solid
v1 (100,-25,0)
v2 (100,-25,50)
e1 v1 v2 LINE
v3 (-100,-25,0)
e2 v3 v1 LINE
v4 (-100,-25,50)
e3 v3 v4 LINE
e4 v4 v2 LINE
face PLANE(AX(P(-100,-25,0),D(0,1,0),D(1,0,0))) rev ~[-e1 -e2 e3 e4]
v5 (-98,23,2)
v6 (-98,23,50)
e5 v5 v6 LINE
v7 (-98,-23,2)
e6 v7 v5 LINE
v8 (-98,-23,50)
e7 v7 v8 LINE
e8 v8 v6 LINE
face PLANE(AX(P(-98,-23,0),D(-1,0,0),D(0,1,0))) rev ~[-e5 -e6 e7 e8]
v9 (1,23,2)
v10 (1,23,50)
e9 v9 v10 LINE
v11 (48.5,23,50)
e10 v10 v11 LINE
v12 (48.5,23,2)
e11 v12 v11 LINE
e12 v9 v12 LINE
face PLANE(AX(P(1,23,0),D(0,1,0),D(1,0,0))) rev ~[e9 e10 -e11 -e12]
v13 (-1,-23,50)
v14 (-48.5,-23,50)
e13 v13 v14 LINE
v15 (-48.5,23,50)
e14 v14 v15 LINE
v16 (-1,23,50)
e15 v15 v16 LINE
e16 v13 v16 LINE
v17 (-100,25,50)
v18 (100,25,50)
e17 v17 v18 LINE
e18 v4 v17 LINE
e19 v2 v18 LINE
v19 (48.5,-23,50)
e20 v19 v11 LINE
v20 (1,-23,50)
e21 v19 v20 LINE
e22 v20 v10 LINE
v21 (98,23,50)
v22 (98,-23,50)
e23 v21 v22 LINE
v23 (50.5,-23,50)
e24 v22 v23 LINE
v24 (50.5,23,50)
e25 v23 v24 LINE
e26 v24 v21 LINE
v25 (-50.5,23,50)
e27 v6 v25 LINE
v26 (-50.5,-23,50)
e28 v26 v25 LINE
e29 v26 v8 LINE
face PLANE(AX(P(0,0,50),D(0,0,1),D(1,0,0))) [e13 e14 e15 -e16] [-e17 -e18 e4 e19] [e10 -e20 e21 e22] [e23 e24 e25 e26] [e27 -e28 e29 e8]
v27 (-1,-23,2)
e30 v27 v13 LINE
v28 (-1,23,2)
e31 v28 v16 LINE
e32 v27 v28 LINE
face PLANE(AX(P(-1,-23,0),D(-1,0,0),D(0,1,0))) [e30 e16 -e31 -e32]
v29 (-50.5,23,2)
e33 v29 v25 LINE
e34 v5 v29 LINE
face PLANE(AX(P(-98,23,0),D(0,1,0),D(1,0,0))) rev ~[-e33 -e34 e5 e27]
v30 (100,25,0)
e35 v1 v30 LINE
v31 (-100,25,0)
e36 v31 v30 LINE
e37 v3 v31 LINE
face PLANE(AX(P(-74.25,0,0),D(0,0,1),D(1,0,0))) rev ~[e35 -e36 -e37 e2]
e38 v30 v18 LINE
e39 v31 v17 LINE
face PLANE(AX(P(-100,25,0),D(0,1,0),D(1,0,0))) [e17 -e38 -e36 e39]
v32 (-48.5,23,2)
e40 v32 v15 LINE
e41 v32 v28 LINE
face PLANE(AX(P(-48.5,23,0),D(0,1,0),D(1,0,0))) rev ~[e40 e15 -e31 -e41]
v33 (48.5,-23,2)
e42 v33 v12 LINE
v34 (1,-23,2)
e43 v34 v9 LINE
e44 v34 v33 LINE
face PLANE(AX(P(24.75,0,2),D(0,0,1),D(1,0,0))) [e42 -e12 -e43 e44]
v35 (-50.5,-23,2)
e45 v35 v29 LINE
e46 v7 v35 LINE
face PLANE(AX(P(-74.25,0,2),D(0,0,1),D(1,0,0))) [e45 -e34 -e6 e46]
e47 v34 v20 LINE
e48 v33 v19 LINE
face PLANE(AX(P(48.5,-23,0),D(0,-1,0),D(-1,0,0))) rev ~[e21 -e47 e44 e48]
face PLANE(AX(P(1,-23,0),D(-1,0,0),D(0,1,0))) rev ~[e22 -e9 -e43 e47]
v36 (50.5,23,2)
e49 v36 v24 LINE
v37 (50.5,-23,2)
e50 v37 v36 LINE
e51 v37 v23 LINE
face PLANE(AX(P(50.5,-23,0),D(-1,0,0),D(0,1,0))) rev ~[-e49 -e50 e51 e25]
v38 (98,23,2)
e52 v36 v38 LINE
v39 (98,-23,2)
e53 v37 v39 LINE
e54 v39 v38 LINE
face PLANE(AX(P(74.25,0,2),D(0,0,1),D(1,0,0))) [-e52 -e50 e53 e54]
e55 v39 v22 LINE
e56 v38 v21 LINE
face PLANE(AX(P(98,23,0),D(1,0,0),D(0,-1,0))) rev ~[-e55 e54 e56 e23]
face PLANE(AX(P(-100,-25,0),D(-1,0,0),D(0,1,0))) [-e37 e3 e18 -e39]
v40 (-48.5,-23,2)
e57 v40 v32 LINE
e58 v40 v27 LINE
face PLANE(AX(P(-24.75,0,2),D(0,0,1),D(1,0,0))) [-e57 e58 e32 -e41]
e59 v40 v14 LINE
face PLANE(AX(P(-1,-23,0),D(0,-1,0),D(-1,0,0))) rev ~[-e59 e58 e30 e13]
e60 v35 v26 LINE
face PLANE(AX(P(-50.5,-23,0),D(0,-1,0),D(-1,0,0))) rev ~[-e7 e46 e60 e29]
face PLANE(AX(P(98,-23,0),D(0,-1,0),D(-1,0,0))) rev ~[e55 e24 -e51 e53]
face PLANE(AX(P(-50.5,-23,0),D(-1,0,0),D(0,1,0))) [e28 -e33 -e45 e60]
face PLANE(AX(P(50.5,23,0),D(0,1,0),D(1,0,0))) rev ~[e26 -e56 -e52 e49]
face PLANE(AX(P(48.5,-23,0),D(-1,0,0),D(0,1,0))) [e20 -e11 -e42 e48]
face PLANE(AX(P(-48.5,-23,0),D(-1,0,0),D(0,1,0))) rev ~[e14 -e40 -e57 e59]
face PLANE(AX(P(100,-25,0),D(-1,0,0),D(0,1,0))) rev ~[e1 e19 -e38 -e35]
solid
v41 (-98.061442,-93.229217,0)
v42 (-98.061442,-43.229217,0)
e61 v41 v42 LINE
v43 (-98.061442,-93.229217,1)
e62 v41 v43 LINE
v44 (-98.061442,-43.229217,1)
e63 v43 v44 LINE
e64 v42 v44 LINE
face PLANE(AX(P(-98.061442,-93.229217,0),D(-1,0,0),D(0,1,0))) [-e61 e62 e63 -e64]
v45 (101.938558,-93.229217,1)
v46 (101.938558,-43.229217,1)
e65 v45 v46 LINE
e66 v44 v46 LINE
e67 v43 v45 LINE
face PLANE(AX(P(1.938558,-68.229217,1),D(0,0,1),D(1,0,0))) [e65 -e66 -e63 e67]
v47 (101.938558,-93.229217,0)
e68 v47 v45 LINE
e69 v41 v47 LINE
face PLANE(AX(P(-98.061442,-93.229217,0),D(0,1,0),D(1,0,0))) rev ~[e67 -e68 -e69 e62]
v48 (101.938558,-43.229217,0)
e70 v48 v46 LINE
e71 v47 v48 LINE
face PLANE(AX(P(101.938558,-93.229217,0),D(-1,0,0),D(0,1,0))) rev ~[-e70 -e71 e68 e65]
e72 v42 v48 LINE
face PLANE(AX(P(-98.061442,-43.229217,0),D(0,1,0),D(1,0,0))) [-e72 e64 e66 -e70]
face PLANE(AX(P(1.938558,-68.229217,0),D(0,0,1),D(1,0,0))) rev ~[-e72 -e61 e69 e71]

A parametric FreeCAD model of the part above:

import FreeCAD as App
import Part
import Sketcher

V = App.Vector
Q = App.Units.Quantity


def add_polygon(sketch, points):
    """Adds a closed chain of lines whose ends are joined by coincident constraints."""
    first, n = sketch.GeometryCount, len(points)
    for a, b in zip(points, points[1:] + points[:1]):
        sketch.addGeometry(Part.LineSegment(App.Vector(*a, 0), App.Vector(*b, 0)), False)
    for i in range(n):
        sketch.addConstraint(Sketcher.Constraint("Coincident", first + i, 2, first + (i + 1) % n, 1))

doc = App.newDocument("Part")
body = doc.addObject("PartDesign::Body", "Body")

# Sketch on XY plane
sketch1 = doc.addObject("Sketcher::SketchObject", "Sketch")
body.addObject(sketch1)
sketch1.AttachmentSupport = (doc.XY_Plane, [""])
sketch1.MapMode = "FlatFace"
add_polygon(sketch1, [(-100, 25), (-100, -25), (100, -25), (100, 25)])  # lines 0-3
add_polygon(sketch1, [(98, -23), (50, -23), (50, 23), (98, 23)])  # lines 4-7
add_polygon(sketch1, [(48, -23), (1, -23), (1, 23), (48, 23)])  # lines 8-11
add_polygon(sketch1, [(-1, -23), (-48, -23), (-48, 23), (-1, 23)])  # lines 12-15
add_polygon(sketch1, [(-50, -23), (-98, -23), (-98, 23), (-50, 23)])  # lines 16-19
sketch1.addConstraint([
    Sketcher.Constraint("Vertical", 0),
    Sketcher.Constraint("Horizontal", 1),
    Sketcher.Constraint("Vertical", 2),
    Sketcher.Constraint("Horizontal", 3),
    Sketcher.Constraint("Horizontal", 4),
    Sketcher.Constraint("Vertical", 5),
    Sketcher.Constraint("Horizontal", 6),
    Sketcher.Constraint("Vertical", 7),
    Sketcher.Constraint("Horizontal", 8),
    Sketcher.Constraint("Vertical", 9),
    Sketcher.Constraint("Horizontal", 10),
    Sketcher.Constraint("Vertical", 11),
    Sketcher.Constraint("Horizontal", 12),
    Sketcher.Constraint("Vertical", 13),
    Sketcher.Constraint("Horizontal", 14),
    Sketcher.Constraint("Vertical", 15),
    Sketcher.Constraint("Horizontal", 16),
    Sketcher.Constraint("Vertical", 17),
    Sketcher.Constraint("Horizontal", 18),
    Sketcher.Constraint("Vertical", 19),
    Sketcher.Constraint("Symmetric", 0, 2, 2, 2, -1, 1),
    Sketcher.Constraint("Symmetric", 10, 2, 12, 2, -1, 1),
    Sketcher.Constraint("Symmetric", 8, 2, 14, 2, -1, 1),
    Sketcher.Constraint("Symmetric", 6, 2, 16, 2, -1, 1),
    Sketcher.Constraint("Symmetric", 4, 2, 18, 2, -1, 1),
    Sketcher.Constraint("Horizontal", 7, 2, 8, 2),
    Sketcher.Constraint("Horizontal", 6, 2, 9, 2),
    Sketcher.Constraint("Horizontal", 11, 2, 12, 2),
    Sketcher.Constraint("Equal", 6, 8),
    Sketcher.Constraint("DistanceX", 1, 1, 1, 2, Q("200 mm")),
    Sketcher.Constraint("DistanceY", 0, 2, 0, 1, Q("50 mm")),
    Sketcher.Constraint("DistanceY", 5, 1, 5, 2, Q("46 mm")),
    Sketcher.Constraint("DistanceX", 4, 2, 4, 1, Q("47.5 mm")),
    Sketcher.Constraint("DistanceX", -1, 1, 6, 2, Q("98 mm")),
    Sketcher.Constraint("DistanceX", -1, 1, 8, 2, Q("1 mm")),
])
pad1 = doc.addObject("PartDesign::Pad", "Pad")
body.addObject(pad1)
pad1.Profile = sketch1
pad1.Length = 50

# Sketch on XY plane
sketch2 = doc.addObject("Sketcher::SketchObject", "Sketch001")
body.addObject(sketch2)
sketch2.AttachmentSupport = (doc.XY_Plane, [""])
sketch2.MapMode = "FlatFace"
add_polygon(sketch2, [(-98, 23), (-98, -23), (-50, -23), (-50, 23)])  # lines 0-3
add_polygon(sketch2, [(-48, 23), (-48, -23), (-1, -23), (-1, 23)])  # lines 4-7
add_polygon(sketch2, [(1, 23), (1, -23), (48, -23), (48, 23)])  # lines 8-11
add_polygon(sketch2, [(50, 23), (50, -23), (98, -23), (98, 23)])  # lines 12-15
sketch2.addConstraint([
    Sketcher.Constraint("Vertical", 0),
    Sketcher.Constraint("Horizontal", 1),
    Sketcher.Constraint("Vertical", 2),
    Sketcher.Constraint("Horizontal", 3),
    Sketcher.Constraint("Vertical", 4),
    Sketcher.Constraint("Horizontal", 5),
    Sketcher.Constraint("Vertical", 6),
    Sketcher.Constraint("Horizontal", 7),
    Sketcher.Constraint("Vertical", 8),
    Sketcher.Constraint("Horizontal", 9),
    Sketcher.Constraint("Vertical", 10),
    Sketcher.Constraint("Horizontal", 11),
    Sketcher.Constraint("Vertical", 12),
    Sketcher.Constraint("Horizontal", 13),
    Sketcher.Constraint("Vertical", 14),
    Sketcher.Constraint("Horizontal", 15),
    Sketcher.Constraint("Symmetric", 6, 2, 8, 2, -1, 1),
    Sketcher.Constraint("Symmetric", 4, 2, 10, 2, -1, 1),
    Sketcher.Constraint("Symmetric", 2, 2, 12, 2, -1, 1),
    Sketcher.Constraint("Symmetric", 0, 2, 14, 2, -1, 1),
    Sketcher.Constraint("Horizontal", 1, 2, 4, 2),
    Sketcher.Constraint("Horizontal", 3, 2, 6, 2),
    Sketcher.Constraint("Horizontal", 5, 2, 8, 2),
    Sketcher.Constraint("Equal", 3, 5),
    Sketcher.Constraint("DistanceY", 0, 2, 0, 1, Q("46 mm")),
    Sketcher.Constraint("DistanceX", 1, 1, 1, 2, Q("47.5 mm")),
    Sketcher.Constraint("DistanceX", 0, 2, -1, 1, Q("98 mm")),
    Sketcher.Constraint("DistanceX", 5, 2, -1, 1, Q("1 mm")),
])
pad2 = doc.addObject("PartDesign::Pad", "Pad001")
body.addObject(pad2)
pad2.Profile = sketch2
pad2.Length = 2
body2 = doc.addObject("PartDesign::Body", "Body001")

# Sketch on XY plane
sketch3 = doc.addObject("Sketcher::SketchObject", "Sketch002")
body2.addObject(sketch3)
sketch3.AttachmentSupport = (doc.getObject("XY_Plane001"), [""])
sketch3.MapMode = "FlatFace"
add_polygon(sketch3, [(-98, -43), (-98, -93), (102, -93), (102, -43)])  # lines 0-3
sketch3.addConstraint([
    Sketcher.Constraint("Vertical", 0),
    Sketcher.Constraint("Horizontal", 1),
    Sketcher.Constraint("Vertical", 2),
    Sketcher.Constraint("Horizontal", 3),
    Sketcher.Constraint("DistanceX", 1, 1, 1, 2, Q("200 mm")),
    Sketcher.Constraint("DistanceY", 0, 2, 0, 1, Q("50 mm")),
    Sketcher.Constraint("DistanceX", 0, 2, -1, 1, Q("98.061442 mm")),
    Sketcher.Constraint("DistanceY", 0, 2, -1, 1, Q("93.229217 mm")),
])
pad3 = doc.addObject("PartDesign::Pad", "Pad002")
body2.addObject(pad3)
pad3.Profile = sketch3
pad3.Length = 1

doc.recompute()
